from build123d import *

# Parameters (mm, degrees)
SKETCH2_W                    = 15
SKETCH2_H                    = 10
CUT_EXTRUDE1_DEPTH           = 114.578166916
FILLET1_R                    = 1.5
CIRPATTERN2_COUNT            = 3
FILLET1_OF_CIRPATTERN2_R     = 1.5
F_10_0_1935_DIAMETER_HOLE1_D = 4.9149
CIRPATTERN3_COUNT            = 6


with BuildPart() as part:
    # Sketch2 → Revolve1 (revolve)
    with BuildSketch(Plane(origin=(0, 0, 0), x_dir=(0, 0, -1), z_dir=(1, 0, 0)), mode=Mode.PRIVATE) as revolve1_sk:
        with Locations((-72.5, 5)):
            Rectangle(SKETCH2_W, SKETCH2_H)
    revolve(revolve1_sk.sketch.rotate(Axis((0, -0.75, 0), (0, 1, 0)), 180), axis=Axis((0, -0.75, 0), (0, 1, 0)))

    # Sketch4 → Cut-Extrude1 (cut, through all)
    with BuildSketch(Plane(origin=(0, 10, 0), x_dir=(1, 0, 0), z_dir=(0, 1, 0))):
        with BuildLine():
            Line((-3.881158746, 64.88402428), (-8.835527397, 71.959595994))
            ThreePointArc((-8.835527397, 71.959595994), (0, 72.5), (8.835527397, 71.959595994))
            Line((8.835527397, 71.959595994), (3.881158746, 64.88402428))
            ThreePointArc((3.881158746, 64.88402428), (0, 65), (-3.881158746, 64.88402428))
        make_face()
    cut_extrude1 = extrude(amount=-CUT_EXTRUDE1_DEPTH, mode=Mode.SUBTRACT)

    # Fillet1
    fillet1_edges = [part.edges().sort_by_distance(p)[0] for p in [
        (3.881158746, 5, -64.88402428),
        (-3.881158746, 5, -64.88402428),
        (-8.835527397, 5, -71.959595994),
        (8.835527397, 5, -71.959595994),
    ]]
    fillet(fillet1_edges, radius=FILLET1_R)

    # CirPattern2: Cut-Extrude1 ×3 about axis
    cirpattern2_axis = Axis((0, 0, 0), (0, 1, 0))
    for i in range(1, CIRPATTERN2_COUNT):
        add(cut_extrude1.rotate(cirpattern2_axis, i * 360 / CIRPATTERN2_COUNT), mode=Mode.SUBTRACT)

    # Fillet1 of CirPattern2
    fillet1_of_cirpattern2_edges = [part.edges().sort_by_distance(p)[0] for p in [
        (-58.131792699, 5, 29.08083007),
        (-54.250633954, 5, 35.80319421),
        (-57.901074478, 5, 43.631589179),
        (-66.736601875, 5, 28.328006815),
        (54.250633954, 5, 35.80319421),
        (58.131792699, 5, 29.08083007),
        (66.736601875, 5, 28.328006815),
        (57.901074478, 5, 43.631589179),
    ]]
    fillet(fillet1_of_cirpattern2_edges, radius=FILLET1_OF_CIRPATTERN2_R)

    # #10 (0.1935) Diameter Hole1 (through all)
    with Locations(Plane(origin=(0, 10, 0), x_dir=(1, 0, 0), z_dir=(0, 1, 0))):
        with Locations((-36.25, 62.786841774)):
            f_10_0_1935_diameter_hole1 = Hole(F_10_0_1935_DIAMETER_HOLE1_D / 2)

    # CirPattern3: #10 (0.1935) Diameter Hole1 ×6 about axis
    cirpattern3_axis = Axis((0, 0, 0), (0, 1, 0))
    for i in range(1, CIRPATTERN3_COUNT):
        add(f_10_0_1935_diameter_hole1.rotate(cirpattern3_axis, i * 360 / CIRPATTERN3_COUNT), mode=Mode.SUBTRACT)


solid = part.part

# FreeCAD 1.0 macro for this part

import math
import FreeCAD as App
import Part
import Sketcher
Q = App.Units.Quantity


def edges_at(feature, points):
    """Names of the edges that pass closest to the given points."""
    edges = feature.Shape.Edges
    near = lambda p: min(range(len(edges)), key=lambda i: edges[i].distToShape(Part.Vertex(*p))[0])
    return sorted({f"Edge{near(p) + 1}" for p in points})

doc = App.newDocument("Part")
body = doc.addObject("PartDesign::Body", "Body")

# Sketch on YZ plane
sketch1 = doc.addObject("Sketcher::SketchObject", "Sketch")
body.addObject(sketch1)
sketch1.AttachmentSupport = (doc.YZ_Plane, [""])
sketch1.MapMode = "FlatFace"
sketch1.addGeometry([
    Part.LineSegment(App.Vector(10, 80, 0), App.Vector(0, 80, 0)),
    Part.LineSegment(App.Vector(0, 80, 0), App.Vector(0, 65, 0)),
    Part.LineSegment(App.Vector(0, 65, 0), App.Vector(10, 65, 0)),
    Part.LineSegment(App.Vector(10, 65, 0), App.Vector(10, 80, 0)),
], False)
sketch1.addConstraint([
    Sketcher.Constraint("Coincident", 0, 2, 1, 1),
    Sketcher.Constraint("Coincident", 1, 2, 2, 1),
    Sketcher.Constraint("Coincident", 2, 2, 3, 1),
    Sketcher.Constraint("Coincident", 3, 2, 0, 1),
    Sketcher.Constraint("Horizontal", 0),
    Sketcher.Constraint("Vertical", 1),
    Sketcher.Constraint("Horizontal", 2),
    Sketcher.Constraint("Vertical", 3),
    Sketcher.Constraint("PointOnObject", 0, 2, -2),
    Sketcher.Constraint("DistanceX", 0, 2, 0, 1, 10.0),
    Sketcher.Constraint("DistanceY", 1, 2, 1, 1, 15.0),
    Sketcher.Constraint("DistanceY", -1, 1, 0, 2, 80.0),
])
revolution = doc.addObject("PartDesign::Revolution", "Revolution")
body.addObject(revolution)
revolution.Profile = sketch1
revolution.ReferenceAxis = (sketch1, ["H_Axis"])
revolution.Angle = 360

# Sketch on XZ plane
sketch2 = doc.addObject("Sketcher::SketchObject", "Sketch001")
body.addObject(sketch2)
sketch2.AttachmentSupport = (doc.XZ_Plane, [""])
sketch2.MapMode = "FlatFace"
sketch2.AttachmentOffset = App.Placement(App.Vector(0, 0, -10), App.Rotation())
sketch2.addGeometry([
    Part.LineSegment(App.Vector(-9, -72, 0), App.Vector(-4, -65, 0)),
    Part.ArcOfCircle(Part.Circle(App.Vector(0, 0, 0), App.Vector(0, 0, 1), 65), math.radians(-93.42), math.radians(-86.58)),
    Part.LineSegment(App.Vector(4, -65, 0), App.Vector(9, -72, 0)),
    Part.ArcOfCircle(Part.Circle(App.Vector(0, 0, 0), App.Vector(0, 0, 1), 73), math.radians(-97), math.radians(-83)),
], False)
sketch2.addConstraint([
    Sketcher.Constraint("Coincident", 0, 2, 1, 1),
    Sketcher.Constraint("Coincident", 1, 2, 2, 1),
    Sketcher.Constraint("Coincident", 2, 2, 3, 2),
    Sketcher.Constraint("Coincident", 3, 1, 0, 1),
    Sketcher.Constraint("Coincident", 1, 3, -1, 1),
    Sketcher.Constraint("Coincident", 3, 3, -1, 1),
    Sketcher.Constraint("Horizontal", 0, 2, 1, 2),
    Sketcher.Constraint("Horizontal", 2, 2, 3, 1),
    Sketcher.Constraint("Radius", 1, 65.0),
    Sketcher.Constraint("Radius", 3, 72.5),
    Sketcher.Constraint("Angle", 0, Q("55 deg")),
    Sketcher.Constraint("Distance", 0, 8.637678),
])
pocket1 = doc.addObject("PartDesign::Pocket", "Pocket")
body.addObject(pocket1)
pocket1.Profile = sketch2
pocket1.Type = "ThroughAll"
pocket1.Reversed = True
doc.recompute()

fillet = doc.addObject("PartDesign::Fillet", "Fillet")
body.addObject(fillet)
fillet.Base = (pocket1, edges_at(pocket1, [
    (3.881, 5, -64.884),
    (-3.881, 5, -64.884),
    (-8.836, 5, -71.96),
    (8.836, 5, -71.96),
]))
fillet.Radius = 1.5
doc.recompute()

polarpattern = doc.addObject("PartDesign::PolarPattern", "PolarPattern")
body.addObject(polarpattern)
polarpattern.Originals = [pocket1]
polarpattern.Axis = (doc.Y_Axis, [""])
polarpattern.Angle = 360
polarpattern.Occurrences = 3
body.Tip = polarpattern
doc.recompute()

fillet2 = doc.addObject("PartDesign::Fillet", "Fillet001")
body.addObject(fillet2)
fillet2.Base = (polarpattern, edges_at(polarpattern, [
    (-58.132, 5, 29.081),
    (-54.251, 5, 35.803),
    (-57.901, 5, 43.632),
    (-66.737, 5, 28.328),
    (54.251, 5, 35.803),
    (58.132, 5, 29.081),
    (66.737, 5, 28.328),
    (57.901, 5, 43.632),
]))
fillet2.Radius = 1.5

# Sketch on XZ plane
sketch3 = doc.addObject("Sketcher::SketchObject", "Sketch002")
body.addObject(sketch3)
sketch3.AttachmentSupport = (doc.XZ_Plane, [""])
sketch3.MapMode = "FlatFace"
sketch3.AttachmentOffset = App.Placement(App.Vector(0, 0, -10), App.Rotation())
sketch3.addGeometry(Part.Circle(App.Vector(-36.2, -62.8, 0), App.Vector(0, 0, 1), 2.5), False)
sketch3.addConstraint([
    Sketcher.Constraint("Diameter", 0, 4.9149),
    Sketcher.Constraint("DistanceX", 0, 3, -1, 1, 36.25),
    Sketcher.Constraint("DistanceY", 0, 3, -1, 1, 62.786842),
])
doc.recompute()
hole = doc.addObject("PartDesign::Hole", "Hole")
body.addObject(hole)
hole.Profile = sketch3
hole.ThreadType = "None"
hole.Diameter = 4.9149
hole.DepthType = "ThroughAll"
hole.Reversed = True
doc.recompute()

polarpattern2 = doc.addObject("PartDesign::PolarPattern", "PolarPattern001")
body.addObject(polarpattern2)
polarpattern2.Originals = [hole]
polarpattern2.Axis = (doc.Y_Axis, [""])
polarpattern2.Angle = 360
polarpattern2.Occurrences = 6
body.Tip = polarpattern2

doc.recompute()
